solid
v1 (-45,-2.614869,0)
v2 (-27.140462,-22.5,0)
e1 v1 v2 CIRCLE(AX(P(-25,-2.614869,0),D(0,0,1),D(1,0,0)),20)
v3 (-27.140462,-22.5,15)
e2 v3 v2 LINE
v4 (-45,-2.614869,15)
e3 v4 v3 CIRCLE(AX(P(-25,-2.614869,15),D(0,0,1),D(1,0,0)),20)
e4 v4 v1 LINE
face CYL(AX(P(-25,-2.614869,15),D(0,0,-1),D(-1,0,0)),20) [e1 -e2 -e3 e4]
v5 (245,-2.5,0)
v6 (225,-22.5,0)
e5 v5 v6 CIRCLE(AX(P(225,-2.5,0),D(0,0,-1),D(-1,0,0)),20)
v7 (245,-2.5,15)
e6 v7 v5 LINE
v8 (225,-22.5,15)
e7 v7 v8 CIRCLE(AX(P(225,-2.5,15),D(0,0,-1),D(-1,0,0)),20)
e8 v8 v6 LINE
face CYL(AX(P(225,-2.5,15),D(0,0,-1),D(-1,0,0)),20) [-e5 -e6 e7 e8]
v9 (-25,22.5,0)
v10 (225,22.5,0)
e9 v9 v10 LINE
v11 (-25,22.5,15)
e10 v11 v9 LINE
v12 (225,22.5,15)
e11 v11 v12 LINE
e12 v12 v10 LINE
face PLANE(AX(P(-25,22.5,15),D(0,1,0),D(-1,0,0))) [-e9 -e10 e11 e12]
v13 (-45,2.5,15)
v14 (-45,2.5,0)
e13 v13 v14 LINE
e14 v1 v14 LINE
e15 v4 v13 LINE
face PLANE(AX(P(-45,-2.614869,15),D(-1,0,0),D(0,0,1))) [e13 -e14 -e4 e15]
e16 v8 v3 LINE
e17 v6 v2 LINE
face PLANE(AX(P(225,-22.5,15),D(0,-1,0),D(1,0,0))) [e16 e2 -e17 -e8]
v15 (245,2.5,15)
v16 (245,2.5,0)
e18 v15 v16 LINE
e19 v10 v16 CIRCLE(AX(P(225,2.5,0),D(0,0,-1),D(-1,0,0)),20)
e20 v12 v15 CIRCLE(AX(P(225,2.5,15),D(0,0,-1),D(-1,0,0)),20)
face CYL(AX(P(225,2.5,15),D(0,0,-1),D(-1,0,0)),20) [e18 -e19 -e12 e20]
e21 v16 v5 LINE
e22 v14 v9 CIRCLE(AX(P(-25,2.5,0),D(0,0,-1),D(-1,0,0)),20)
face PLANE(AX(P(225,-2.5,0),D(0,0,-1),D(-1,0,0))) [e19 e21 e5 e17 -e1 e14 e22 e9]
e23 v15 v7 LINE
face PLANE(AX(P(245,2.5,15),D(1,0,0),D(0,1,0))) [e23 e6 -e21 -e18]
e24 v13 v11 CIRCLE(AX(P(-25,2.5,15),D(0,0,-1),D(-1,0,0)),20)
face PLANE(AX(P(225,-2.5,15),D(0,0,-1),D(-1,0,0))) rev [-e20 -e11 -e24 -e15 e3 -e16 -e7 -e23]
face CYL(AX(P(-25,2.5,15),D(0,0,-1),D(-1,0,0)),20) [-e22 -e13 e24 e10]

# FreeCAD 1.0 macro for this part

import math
import FreeCAD as App
import Part
import Sketcher
from FreeCAD import Vector

doc = App.newDocument("Part")
body = doc.addObject("PartDesign::Body", "Body")

sketch1 = doc.addObject("Sketcher::SketchObject", "Sketch")
body.addObject(sketch1)
sketch1.AttachmentSupport = (doc.XY_Plane, [""])
sketch1.MapMode = "FlatFace"
sketch1.addGeometry([
    Part.LineSegment(Vector(225, 22, 0), Vector(-25, 22, 0)),
    Part.ArcOfCircle(Part.Circle(Vector(-25, 3, 0), Vector(0, 0, 1), 20), math.radians(90), math.radians(180)),
    Part.LineSegment(Vector(-45, 2, 0), Vector(-45, -3, 0)),
    Part.ArcOfCircle(Part.Circle(Vector(-25, -3, 0), Vector(0, 0, 1), 20), math.radians(180), math.radians(264)),
    Part.LineSegment(Vector(-27, -22, 0), Vector(225, -22, 0)),
    Part.ArcOfCircle(Part.Circle(Vector(225, -3, 0), Vector(0, 0, 1), 20), math.radians(-90), math.radians(0)),
    Part.LineSegment(Vector(245, -2, 0), Vector(245, 2, 0)),
    Part.ArcOfCircle(Part.Circle(Vector(225, 3, 0), Vector(0, 0, 1), 20), math.radians(0), math.radians(90)),
], False)
sketch1.addConstraint([
    Sketcher.Constraint("Tangent", 0, 2, 1, 1),
    Sketcher.Constraint("Tangent", 1, 2, 2, 1),
    Sketcher.Constraint("Tangent", 2, 2, 3, 1),
    Sketcher.Constraint("Coincident", 3, 2, 4, 1),
    Sketcher.Constraint("Tangent", 4, 2, 5, 1),
    Sketcher.Constraint("Tangent", 5, 2, 6, 1),
    Sketcher.Constraint("Tangent", 6, 2, 7, 1),
    Sketcher.Constraint("Tangent", 7, 2, 0, 1),
    Sketcher.Constraint("Horizontal", 0),
    Sketcher.Constraint("Vertical", 2),
    Sketcher.Constraint("Horizontal", 4),
    Sketcher.Constraint("Vertical", 6),
    Sketcher.Constraint("Equal", 1, 3),
    Sketcher.Constraint("Equal", 3, 5),
    Sketcher.Constraint("Equal", 5, 7),
    Sketcher.Constraint("Radius", 1, 20.0),
    Sketcher.Constraint("DistanceX", 0, 2, 0, 1, 250.0),
    Sketcher.Constraint("DistanceY", 6, 1, 6, 2, 5.0),
    Sketcher.Constraint("DistanceX", 1, 3, -1, 1, 25.0),
    Sketcher.Constraint("DistanceY", -1, 1, 1, 3, 2.5),
    Sketcher.Constraint("DistanceY", 2, 2, 2, 1, 5.114869),
])
pad1 = doc.addObject("PartDesign::Pad", "Pad")
body.addObject(pad1)
pad1.Profile = sketch1
pad1.Length = 15

doc.recompute()
